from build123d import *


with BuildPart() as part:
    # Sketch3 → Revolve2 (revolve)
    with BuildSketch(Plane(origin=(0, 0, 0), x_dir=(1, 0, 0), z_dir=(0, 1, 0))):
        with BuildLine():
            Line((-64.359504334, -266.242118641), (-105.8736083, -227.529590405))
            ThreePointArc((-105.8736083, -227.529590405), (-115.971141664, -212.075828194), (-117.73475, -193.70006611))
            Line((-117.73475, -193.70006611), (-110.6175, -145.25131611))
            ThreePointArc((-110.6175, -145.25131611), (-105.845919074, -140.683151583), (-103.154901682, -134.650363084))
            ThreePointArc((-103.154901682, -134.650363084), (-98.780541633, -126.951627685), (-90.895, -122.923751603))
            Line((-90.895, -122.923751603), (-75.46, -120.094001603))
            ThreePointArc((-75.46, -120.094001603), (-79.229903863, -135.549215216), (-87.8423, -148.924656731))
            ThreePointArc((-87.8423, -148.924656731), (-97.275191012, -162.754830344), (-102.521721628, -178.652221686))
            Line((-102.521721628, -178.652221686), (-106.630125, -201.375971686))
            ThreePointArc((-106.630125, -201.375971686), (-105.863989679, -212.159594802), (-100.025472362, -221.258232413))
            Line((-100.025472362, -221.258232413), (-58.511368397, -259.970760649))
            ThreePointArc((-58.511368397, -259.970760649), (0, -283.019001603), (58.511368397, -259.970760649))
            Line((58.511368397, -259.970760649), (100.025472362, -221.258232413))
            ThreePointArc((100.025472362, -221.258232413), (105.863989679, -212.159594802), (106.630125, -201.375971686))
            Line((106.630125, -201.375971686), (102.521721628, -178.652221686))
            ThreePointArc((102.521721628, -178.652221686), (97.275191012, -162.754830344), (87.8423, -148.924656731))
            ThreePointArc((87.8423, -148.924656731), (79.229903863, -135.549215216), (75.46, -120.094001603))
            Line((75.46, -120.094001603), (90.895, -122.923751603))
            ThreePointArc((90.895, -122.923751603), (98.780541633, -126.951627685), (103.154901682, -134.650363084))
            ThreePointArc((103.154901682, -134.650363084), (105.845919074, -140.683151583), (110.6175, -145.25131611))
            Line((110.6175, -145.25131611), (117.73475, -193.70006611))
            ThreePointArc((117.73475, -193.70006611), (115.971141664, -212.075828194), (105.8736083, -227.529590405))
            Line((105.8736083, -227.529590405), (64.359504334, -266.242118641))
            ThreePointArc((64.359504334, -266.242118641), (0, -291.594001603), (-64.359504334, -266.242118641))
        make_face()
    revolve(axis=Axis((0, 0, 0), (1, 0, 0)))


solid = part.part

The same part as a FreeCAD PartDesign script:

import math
import FreeCAD as App
import Part
import Sketcher

V = App.Vector
Q = App.Units.Quantity

doc = App.newDocument("Part")
params = doc.addObject("Spreadsheet::Sheet", "Params")
for row, (alias, value) in enumerate([
    ("sketch1_radius", "17.15 mm"),
    ("sketch1_radius2", "48.02 mm"),
    ("revolution_angle", "360 deg"),
], start=1):
    params.set(f"A{row}", alias)
    params.set(f"B{row}", "=" + value)
    params.setAlias(f"B{row}", alias)

body = doc.addObject("PartDesign::Body", "Body")

# Sketch on XZ plane
sketch1 = body.newObject("Sketcher::SketchObject", "Sketch")
sketch1.AttachmentSupport = (doc.getObject("XZ_Plane"), [""])
sketch1.MapMode = "FlatFace"
sketch1.addGeometry(Part.LineSegment(V(-106, 228, 0), V(-64, 266, 0)), False)
sketch1.addGeometry(Part.ArcOfCircle(Part.Circle(V(0, 197, 0), V(0, 0, 1), 94), math.radians(47), math.radians(133)), False)
sketch1.addGeometry(Part.LineSegment(V(64, 266, 0), V(106, 228, 0)), False)
sketch1.addGeometry(Part.ArcOfCircle(Part.Circle(V(80, 199, 0), V(0, 0, 1), 39), math.radians(-8), math.radians(47)), False)
sketch1.addGeometry(Part.LineSegment(V(118, 194, 0), V(111, 145, 0)), False)
sketch1.addGeometry(Part.ArcOfCircle(Part.Circle(V(120, 131, 0), V(0, 0, 1), 17), math.radians(123), math.radians(167)), False)
sketch1.addGeometry(Part.ArcOfCircle(Part.Circle(V(88, 138, 0), V(0, 0, 1), 15), math.radians(-80), math.radians(-13)), False)
sketch1.addGeometry(Part.LineSegment(V(91, 123, 0), V(75, 120, 0)), False)
sketch1.addGeometry(Part.ArcOfCircle(Part.Circle(V(123, 117, 0), V(0, 0, 1), 48), math.radians(138), math.radians(176)), False)
sketch1.addGeometry(Part.ArcOfCircle(Part.Circle(V(43, 189, 0), V(0, 0, 1), 60), math.radians(-42), math.radians(-10)), False)
sketch1.addGeometry(Part.LineSegment(V(103, 179, 0), V(107, 201, 0)), False)
sketch1.addGeometry(Part.ArcOfCircle(Part.Circle(V(85, 205, 0), V(0, 0, 1), 22), math.radians(-10), math.radians(47)), False)
sketch1.addGeometry(Part.LineSegment(V(100, 221, 0), V(59, 260, 0)), False)
sketch1.addGeometry(Part.ArcOfCircle(Part.Circle(V(0, 197, 0), V(0, 0, 1), 86), math.radians(47), math.radians(133)), False)
sketch1.addGeometry(Part.LineSegment(V(-59, 260, 0), V(-100, 221, 0)), False)
sketch1.addGeometry(Part.ArcOfCircle(Part.Circle(V(-85, 205, 0), V(0, 0, 1), 22), math.radians(133), math.radians(190)), False)
sketch1.addGeometry(Part.LineSegment(V(-107, 201, 0), V(-103, 179, 0)), False)
sketch1.addGeometry(Part.ArcOfCircle(Part.Circle(V(-43, 189, 0), V(0, 0, 1), 60), math.radians(-170), math.radians(-138)), False)
sketch1.addGeometry(Part.ArcOfCircle(Part.Circle(V(-123, 117, 0), V(0, 0, 1), 48), math.radians(4), math.radians(42)), False)
sketch1.addGeometry(Part.LineSegment(V(-75, 120, 0), V(-91, 123, 0)), False)
sketch1.addGeometry(Part.ArcOfCircle(Part.Circle(V(-88, 138, 0), V(0, 0, 1), 15), math.radians(-167), math.radians(-100)), False)
sketch1.addGeometry(Part.ArcOfCircle(Part.Circle(V(-120, 131, 0), V(0, 0, 1), 17), math.radians(13), math.radians(57)), False)
sketch1.addGeometry(Part.LineSegment(V(-111, 145, 0), V(-118, 194, 0)), False)
sketch1.addGeometry(Part.ArcOfCircle(Part.Circle(V(-80, 199, 0), V(0, 0, 1), 39), math.radians(133), math.radians(188)), False)
sketch1.addConstraint(Sketcher.Constraint("Tangent", 0, 2, 1, 2))
sketch1.addConstraint(Sketcher.Constraint("Tangent", 1, 1, 2, 1))
sketch1.addConstraint(Sketcher.Constraint("Tangent", 2, 2, 3, 2))
sketch1.addConstraint(Sketcher.Constraint("Tangent", 3, 1, 4, 1))
sketch1.addConstraint(Sketcher.Constraint("Coincident", 4, 2, 5, 1))
sketch1.addConstraint(Sketcher.Constraint("Tangent", 5, 2, 6, 2))
sketch1.addConstraint(Sketcher.Constraint("Tangent", 6, 1, 7, 1))
sketch1.addConstraint(Sketcher.Constraint("Coincident", 7, 2, 8, 2))
sketch1.addConstraint(Sketcher.Constraint("Tangent", 8, 1, 9, 1))
sketch1.addConstraint(Sketcher.Constraint("Tangent", 9, 2, 10, 1))
sketch1.addConstraint(Sketcher.Constraint("Tangent", 10, 2, 11, 1))
sketch1.addConstraint(Sketcher.Constraint("Tangent", 11, 2, 12, 1))
sketch1.addConstraint(Sketcher.Constraint("Tangent", 12, 2, 13, 1))
sketch1.addConstraint(Sketcher.Constraint("Tangent", 13, 2, 14, 1))
sketch1.addConstraint(Sketcher.Constraint("Tangent", 14, 2, 15, 1))
sketch1.addConstraint(Sketcher.Constraint("Tangent", 15, 2, 16, 1))
sketch1.addConstraint(Sketcher.Constraint("Tangent", 16, 2, 17, 1))
sketch1.addConstraint(Sketcher.Constraint("Tangent", 17, 2, 18, 2))
sketch1.addConstraint(Sketcher.Constraint("Coincident", 18, 1, 19, 1))
sketch1.addConstraint(Sketcher.Constraint("Tangent", 19, 2, 20, 2))
sketch1.addConstraint(Sketcher.Constraint("Tangent", 20, 1, 21, 1))
sketch1.addConstraint(Sketcher.Constraint("Coincident", 21, 2, 22, 1))
sketch1.addConstraint(Sketcher.Constraint("Tangent", 22, 2, 23, 2))
sketch1.addConstraint(Sketcher.Constraint("Tangent", 23, 1, 0, 1))
sketch1.addConstraint(Sketcher.Constraint("Coincident", 13, 3, 1, 3))
sketch1.addConstraint(Sketcher.Constraint("Equal", 11, 15))
sketch1.addConstraint(Sketcher.Constraint("Equal", 9, 17))
sketch1.addConstraint(Sketcher.Constraint("Equal", 8, 18))
sketch1.addConstraint(Sketcher.Constraint("Equal", 6, 20))
sketch1.addConstraint(Sketcher.Constraint("Equal", 5, 21))
sketch1.addConstraint(Sketcher.Constraint("Equal", 3, 23))
sketch1.addConstraint(Sketcher.Constraint("Symmetric", 11, 3, 15, 3, -2))
sketch1.addConstraint(Sketcher.Constraint("Symmetric", 9, 3, 17, 3, -2))
sketch1.addConstraint(Sketcher.Constraint("Symmetric", 6, 3, 20, 3, -2))
sketch1.addConstraint(Sketcher.Constraint("Symmetric", 3, 3, 23, 3, -2))
sketch1.addConstraint(Sketcher.Constraint("Symmetric", 7, 2, 18, 1, -2))
sketch1.addConstraint(Sketcher.Constraint("Symmetric", 4, 2, 21, 2, -2))
sketch1.addConstraint(Sketcher.Constraint("PointOnObject", 1, 3, -2))
sketch1.addConstraint(Sketcher.Constraint("Parallel", 2, 12))
sketch1.addConstraint(Sketcher.Constraint("Equal", 2, 12))
sketch1.addConstraint(Sketcher.Constraint("Angle", 0, Q("43 deg")))
sketch1.addConstraint(Sketcher.Constraint("Radius", 5, 17.15))
sketch1.addConstraint(Sketcher.Constraint("Radius", 8, 48.02))
sketch1.addConstraint(Sketcher.Constraint("Radius", 1, 94.369002))
sketch1.addConstraint(Sketcher.Constraint("Radius", 6, 15.435))
sketch1.addConstraint(Sketcher.Constraint("Radius", 9, 60.025))
sketch1.addConstraint(Sketcher.Constraint("Radius", 13, 85.794002))
sketch1.addConstraint(Sketcher.Constraint("Radius", 3, 38.5875))
sketch1.addConstraint(Sketcher.Constraint("DistanceX", -1, 1, 7, 2, 75.46))
sketch1.addConstraint(Sketcher.Constraint("Radius", 11, 21.86625))
sketch1.addConstraint(Sketcher.Constraint("DistanceY", -1, 1, 1, 3, 197.225))
sketch1.addConstraint(Sketcher.Constraint("DistanceX", -1, 1, 6, 1, 90.895))
sketch1.addConstraint(Sketcher.Constraint("DistanceY", -1, 1, 7, 2, 120.094002))
sketch1.addConstraint(Sketcher.Constraint("DistanceX", 6, 3, 5, 3, 31.757998))
sketch1.addConstraint(Sketcher.Constraint("DistanceX", -1, 1, 4, 2, 110.6175))
sketch1.addConstraint(Sketcher.Constraint("DistanceX", -1, 1, 5, 2, 103.154902))
sketch1.addConstraint(Sketcher.Constraint("DistanceX", -1, 1, 8, 1, 87.8423))
sketch1.addConstraint(Sketcher.Constraint("DistanceY", 5, 3, 3, 3, 68.497401))
sketch1.addConstraint(Sketcher.Constraint("DistanceY", 9, 3, 11, 3, 15.934799))
sketch1.setExpression("Constraints[41]", "Params.sketch1_radius")
sketch1.setExpression("Constraints[42]", "Params.sketch1_radius2")
revolution = body.newObject("PartDesign::Revolution", "Revolution")
revolution.Profile = sketch1
revolution.ReferenceAxis = (sketch1, ["H_Axis"])
revolution.setExpression("Angle", "Params.revolution_angle")

doc.recompute()
